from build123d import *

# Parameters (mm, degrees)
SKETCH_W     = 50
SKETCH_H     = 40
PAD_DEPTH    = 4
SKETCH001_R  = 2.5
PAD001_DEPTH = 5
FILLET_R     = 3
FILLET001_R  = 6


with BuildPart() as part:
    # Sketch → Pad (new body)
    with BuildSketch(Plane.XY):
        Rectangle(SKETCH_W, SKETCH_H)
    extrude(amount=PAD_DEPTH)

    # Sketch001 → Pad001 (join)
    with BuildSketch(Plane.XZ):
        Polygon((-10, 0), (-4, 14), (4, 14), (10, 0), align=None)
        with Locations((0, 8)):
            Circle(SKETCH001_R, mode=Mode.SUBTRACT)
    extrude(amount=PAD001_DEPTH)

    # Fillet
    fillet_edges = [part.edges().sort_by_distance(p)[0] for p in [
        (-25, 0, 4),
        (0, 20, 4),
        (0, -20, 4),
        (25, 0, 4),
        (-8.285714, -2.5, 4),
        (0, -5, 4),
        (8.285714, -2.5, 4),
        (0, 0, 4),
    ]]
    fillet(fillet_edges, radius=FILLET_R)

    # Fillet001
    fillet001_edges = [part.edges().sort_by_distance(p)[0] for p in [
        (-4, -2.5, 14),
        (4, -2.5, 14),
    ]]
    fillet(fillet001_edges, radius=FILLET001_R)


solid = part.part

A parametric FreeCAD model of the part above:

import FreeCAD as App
import Part
import Sketcher

V = App.Vector


def edges_at(feature, points):
    """Names of the edges that pass closest to the given points."""
    edges = feature.Shape.Edges
    near = lambda p: min(range(len(edges)), key=lambda i: edges[i].distToShape(Part.Vertex(*p))[0])
    return sorted({f"Edge{near(p) + 1}" for p in points})


def add_polygon(sketch, points):
    """Adds a closed chain of lines whose ends are joined by coincident constraints."""
    first, n = sketch.GeometryCount, len(points)
    for a, b in zip(points, points[1:] + points[:1]):
        sketch.addGeometry(Part.LineSegment(App.Vector(*a, 0), App.Vector(*b, 0)), False)
    for i in range(n):
        sketch.addConstraint(Sketcher.Constraint("Coincident", first + i, 2, first + (i + 1) % n, 1))

doc = App.newDocument("Part")
params = doc.addObject("Spreadsheet::Sheet", "Params")
for row, (alias, value) in enumerate([
    ("sketch1_width", "50 mm"),
    ("sketch1_height", "40 mm"),
    ("pad1_length", "4 mm"),
    ("sketch2_diameter", "5 mm"),
    ("sketch2_width", "20 mm"),
    ("sketch2_width2", "8 mm"),
    ("pad2_length", "5 mm"),
    ("fillet_radius", "3 mm"),
    ("fillet2_radius", "6 mm"),
], start=1):
    params.set(f"A{row}", alias)
    params.set(f"B{row}", "=" + value)
    params.setAlias(f"B{row}", alias)

body = doc.addObject("PartDesign::Body", "Body")

# Sketch on XY plane
sketch1 = doc.addObject("Sketcher::SketchObject", "Sketch")
body.addObject(sketch1)
sketch1.AttachmentSupport = (doc.XY_Plane, [""])
sketch1.MapMode = "FlatFace"
add_polygon(sketch1, [(-25, 20), (-25, -20), (25, -20), (25, 20)])  # lines 0-3
sketch1.addConstraint(Sketcher.Constraint("Vertical", 0))
sketch1.addConstraint(Sketcher.Constraint("Horizontal", 1))
sketch1.addConstraint(Sketcher.Constraint("Vertical", 2))
sketch1.addConstraint(Sketcher.Constraint("Horizontal", 3))
sketch1.addConstraint(Sketcher.Constraint("Symmetric", 0, 2, 2, 2, -1, 1))
sketch1.addConstraint(Sketcher.Constraint("DistanceX", 1, 1, 1, 2, 50.0))
sketch1.addConstraint(Sketcher.Constraint("DistanceY", 0, 2, 0, 1, 40.0))
sketch1.setExpression("Constraints[9]", "Params.sketch1_width")
sketch1.setExpression("Constraints[10]", "Params.sketch1_height")
pad1 = doc.addObject("PartDesign::Pad", "Pad")
body.addObject(pad1)
pad1.Profile = sketch1
pad1.setExpression("Length", "Params.pad1_length")

# Sketch on XZ plane
sketch2 = doc.addObject("Sketcher::SketchObject", "Sketch001")
body.addObject(sketch2)
sketch2.AttachmentSupport = (doc.XZ_Plane, [""])
sketch2.MapMode = "FlatFace"
add_polygon(sketch2, [(-4, 14), (-10, 0), (10, 0), (4, 14)])  # lines 0-3
sketch2.addGeometry(Part.Circle(V(0, 8, 0), V(0, 0, 1), 2.5), False)  # 4
sketch2.addConstraint(Sketcher.Constraint("Horizontal", 1))
sketch2.addConstraint(Sketcher.Constraint("Horizontal", 3))
sketch2.addConstraint(Sketcher.Constraint("Symmetric", 0, 2, 1, 2, -1, 1))
sketch2.addConstraint(Sketcher.Constraint("PointOnObject", 4, 3, -2))
sketch2.addConstraint(Sketcher.Constraint("Equal", 0, 2))
sketch2.addConstraint(Sketcher.Constraint("Diameter", 4, 5.0))
sketch2.addConstraint(Sketcher.Constraint("DistanceX", 1, 1, 1, 2, 20.0))
sketch2.addConstraint(Sketcher.Constraint("DistanceX", 3, 2, 3, 1, 8.0))
sketch2.addConstraint(Sketcher.Constraint("DistanceY", -1, 1, 4, 3, 8.0))
sketch2.addConstraint(Sketcher.Constraint("DistanceY", -1, 1, 2, 2, 14.0))
sketch2.setExpression("Constraints[9]", "Params.sketch2_diameter")
sketch2.setExpression("Constraints[10]", "Params.sketch2_width")
sketch2.setExpression("Constraints[11]", "Params.sketch2_width2")
pad2 = doc.addObject("PartDesign::Pad", "Pad001")
body.addObject(pad2)
pad2.Profile = sketch2
pad2.setExpression("Length", "Params.pad2_length")
doc.recompute()

fillet = doc.addObject("PartDesign::Fillet", "Fillet")
body.addObject(fillet)
fillet.Base = (pad2, edges_at(pad2, [
    (-25, 0, 4),
    (0, 20, 4),
    (0, -20, 4),
    (25, 0, 4),
    (-8.286, -2.5, 4),
    (0, -5, 4),
    (8.286, -2.5, 4),
    (0, 0, 4),
]))
fillet.setExpression("Radius", "Params.fillet_radius")
doc.recompute()

fillet2 = doc.addObject("PartDesign::Fillet", "Fillet001")
body.addObject(fillet2)
fillet2.Base = (fillet, edges_at(fillet, [(-4, -2.5, 14), (4, -2.5, 14)]))
fillet2.setExpression("Radius", "Params.fillet2_radius")

doc.recompute()
